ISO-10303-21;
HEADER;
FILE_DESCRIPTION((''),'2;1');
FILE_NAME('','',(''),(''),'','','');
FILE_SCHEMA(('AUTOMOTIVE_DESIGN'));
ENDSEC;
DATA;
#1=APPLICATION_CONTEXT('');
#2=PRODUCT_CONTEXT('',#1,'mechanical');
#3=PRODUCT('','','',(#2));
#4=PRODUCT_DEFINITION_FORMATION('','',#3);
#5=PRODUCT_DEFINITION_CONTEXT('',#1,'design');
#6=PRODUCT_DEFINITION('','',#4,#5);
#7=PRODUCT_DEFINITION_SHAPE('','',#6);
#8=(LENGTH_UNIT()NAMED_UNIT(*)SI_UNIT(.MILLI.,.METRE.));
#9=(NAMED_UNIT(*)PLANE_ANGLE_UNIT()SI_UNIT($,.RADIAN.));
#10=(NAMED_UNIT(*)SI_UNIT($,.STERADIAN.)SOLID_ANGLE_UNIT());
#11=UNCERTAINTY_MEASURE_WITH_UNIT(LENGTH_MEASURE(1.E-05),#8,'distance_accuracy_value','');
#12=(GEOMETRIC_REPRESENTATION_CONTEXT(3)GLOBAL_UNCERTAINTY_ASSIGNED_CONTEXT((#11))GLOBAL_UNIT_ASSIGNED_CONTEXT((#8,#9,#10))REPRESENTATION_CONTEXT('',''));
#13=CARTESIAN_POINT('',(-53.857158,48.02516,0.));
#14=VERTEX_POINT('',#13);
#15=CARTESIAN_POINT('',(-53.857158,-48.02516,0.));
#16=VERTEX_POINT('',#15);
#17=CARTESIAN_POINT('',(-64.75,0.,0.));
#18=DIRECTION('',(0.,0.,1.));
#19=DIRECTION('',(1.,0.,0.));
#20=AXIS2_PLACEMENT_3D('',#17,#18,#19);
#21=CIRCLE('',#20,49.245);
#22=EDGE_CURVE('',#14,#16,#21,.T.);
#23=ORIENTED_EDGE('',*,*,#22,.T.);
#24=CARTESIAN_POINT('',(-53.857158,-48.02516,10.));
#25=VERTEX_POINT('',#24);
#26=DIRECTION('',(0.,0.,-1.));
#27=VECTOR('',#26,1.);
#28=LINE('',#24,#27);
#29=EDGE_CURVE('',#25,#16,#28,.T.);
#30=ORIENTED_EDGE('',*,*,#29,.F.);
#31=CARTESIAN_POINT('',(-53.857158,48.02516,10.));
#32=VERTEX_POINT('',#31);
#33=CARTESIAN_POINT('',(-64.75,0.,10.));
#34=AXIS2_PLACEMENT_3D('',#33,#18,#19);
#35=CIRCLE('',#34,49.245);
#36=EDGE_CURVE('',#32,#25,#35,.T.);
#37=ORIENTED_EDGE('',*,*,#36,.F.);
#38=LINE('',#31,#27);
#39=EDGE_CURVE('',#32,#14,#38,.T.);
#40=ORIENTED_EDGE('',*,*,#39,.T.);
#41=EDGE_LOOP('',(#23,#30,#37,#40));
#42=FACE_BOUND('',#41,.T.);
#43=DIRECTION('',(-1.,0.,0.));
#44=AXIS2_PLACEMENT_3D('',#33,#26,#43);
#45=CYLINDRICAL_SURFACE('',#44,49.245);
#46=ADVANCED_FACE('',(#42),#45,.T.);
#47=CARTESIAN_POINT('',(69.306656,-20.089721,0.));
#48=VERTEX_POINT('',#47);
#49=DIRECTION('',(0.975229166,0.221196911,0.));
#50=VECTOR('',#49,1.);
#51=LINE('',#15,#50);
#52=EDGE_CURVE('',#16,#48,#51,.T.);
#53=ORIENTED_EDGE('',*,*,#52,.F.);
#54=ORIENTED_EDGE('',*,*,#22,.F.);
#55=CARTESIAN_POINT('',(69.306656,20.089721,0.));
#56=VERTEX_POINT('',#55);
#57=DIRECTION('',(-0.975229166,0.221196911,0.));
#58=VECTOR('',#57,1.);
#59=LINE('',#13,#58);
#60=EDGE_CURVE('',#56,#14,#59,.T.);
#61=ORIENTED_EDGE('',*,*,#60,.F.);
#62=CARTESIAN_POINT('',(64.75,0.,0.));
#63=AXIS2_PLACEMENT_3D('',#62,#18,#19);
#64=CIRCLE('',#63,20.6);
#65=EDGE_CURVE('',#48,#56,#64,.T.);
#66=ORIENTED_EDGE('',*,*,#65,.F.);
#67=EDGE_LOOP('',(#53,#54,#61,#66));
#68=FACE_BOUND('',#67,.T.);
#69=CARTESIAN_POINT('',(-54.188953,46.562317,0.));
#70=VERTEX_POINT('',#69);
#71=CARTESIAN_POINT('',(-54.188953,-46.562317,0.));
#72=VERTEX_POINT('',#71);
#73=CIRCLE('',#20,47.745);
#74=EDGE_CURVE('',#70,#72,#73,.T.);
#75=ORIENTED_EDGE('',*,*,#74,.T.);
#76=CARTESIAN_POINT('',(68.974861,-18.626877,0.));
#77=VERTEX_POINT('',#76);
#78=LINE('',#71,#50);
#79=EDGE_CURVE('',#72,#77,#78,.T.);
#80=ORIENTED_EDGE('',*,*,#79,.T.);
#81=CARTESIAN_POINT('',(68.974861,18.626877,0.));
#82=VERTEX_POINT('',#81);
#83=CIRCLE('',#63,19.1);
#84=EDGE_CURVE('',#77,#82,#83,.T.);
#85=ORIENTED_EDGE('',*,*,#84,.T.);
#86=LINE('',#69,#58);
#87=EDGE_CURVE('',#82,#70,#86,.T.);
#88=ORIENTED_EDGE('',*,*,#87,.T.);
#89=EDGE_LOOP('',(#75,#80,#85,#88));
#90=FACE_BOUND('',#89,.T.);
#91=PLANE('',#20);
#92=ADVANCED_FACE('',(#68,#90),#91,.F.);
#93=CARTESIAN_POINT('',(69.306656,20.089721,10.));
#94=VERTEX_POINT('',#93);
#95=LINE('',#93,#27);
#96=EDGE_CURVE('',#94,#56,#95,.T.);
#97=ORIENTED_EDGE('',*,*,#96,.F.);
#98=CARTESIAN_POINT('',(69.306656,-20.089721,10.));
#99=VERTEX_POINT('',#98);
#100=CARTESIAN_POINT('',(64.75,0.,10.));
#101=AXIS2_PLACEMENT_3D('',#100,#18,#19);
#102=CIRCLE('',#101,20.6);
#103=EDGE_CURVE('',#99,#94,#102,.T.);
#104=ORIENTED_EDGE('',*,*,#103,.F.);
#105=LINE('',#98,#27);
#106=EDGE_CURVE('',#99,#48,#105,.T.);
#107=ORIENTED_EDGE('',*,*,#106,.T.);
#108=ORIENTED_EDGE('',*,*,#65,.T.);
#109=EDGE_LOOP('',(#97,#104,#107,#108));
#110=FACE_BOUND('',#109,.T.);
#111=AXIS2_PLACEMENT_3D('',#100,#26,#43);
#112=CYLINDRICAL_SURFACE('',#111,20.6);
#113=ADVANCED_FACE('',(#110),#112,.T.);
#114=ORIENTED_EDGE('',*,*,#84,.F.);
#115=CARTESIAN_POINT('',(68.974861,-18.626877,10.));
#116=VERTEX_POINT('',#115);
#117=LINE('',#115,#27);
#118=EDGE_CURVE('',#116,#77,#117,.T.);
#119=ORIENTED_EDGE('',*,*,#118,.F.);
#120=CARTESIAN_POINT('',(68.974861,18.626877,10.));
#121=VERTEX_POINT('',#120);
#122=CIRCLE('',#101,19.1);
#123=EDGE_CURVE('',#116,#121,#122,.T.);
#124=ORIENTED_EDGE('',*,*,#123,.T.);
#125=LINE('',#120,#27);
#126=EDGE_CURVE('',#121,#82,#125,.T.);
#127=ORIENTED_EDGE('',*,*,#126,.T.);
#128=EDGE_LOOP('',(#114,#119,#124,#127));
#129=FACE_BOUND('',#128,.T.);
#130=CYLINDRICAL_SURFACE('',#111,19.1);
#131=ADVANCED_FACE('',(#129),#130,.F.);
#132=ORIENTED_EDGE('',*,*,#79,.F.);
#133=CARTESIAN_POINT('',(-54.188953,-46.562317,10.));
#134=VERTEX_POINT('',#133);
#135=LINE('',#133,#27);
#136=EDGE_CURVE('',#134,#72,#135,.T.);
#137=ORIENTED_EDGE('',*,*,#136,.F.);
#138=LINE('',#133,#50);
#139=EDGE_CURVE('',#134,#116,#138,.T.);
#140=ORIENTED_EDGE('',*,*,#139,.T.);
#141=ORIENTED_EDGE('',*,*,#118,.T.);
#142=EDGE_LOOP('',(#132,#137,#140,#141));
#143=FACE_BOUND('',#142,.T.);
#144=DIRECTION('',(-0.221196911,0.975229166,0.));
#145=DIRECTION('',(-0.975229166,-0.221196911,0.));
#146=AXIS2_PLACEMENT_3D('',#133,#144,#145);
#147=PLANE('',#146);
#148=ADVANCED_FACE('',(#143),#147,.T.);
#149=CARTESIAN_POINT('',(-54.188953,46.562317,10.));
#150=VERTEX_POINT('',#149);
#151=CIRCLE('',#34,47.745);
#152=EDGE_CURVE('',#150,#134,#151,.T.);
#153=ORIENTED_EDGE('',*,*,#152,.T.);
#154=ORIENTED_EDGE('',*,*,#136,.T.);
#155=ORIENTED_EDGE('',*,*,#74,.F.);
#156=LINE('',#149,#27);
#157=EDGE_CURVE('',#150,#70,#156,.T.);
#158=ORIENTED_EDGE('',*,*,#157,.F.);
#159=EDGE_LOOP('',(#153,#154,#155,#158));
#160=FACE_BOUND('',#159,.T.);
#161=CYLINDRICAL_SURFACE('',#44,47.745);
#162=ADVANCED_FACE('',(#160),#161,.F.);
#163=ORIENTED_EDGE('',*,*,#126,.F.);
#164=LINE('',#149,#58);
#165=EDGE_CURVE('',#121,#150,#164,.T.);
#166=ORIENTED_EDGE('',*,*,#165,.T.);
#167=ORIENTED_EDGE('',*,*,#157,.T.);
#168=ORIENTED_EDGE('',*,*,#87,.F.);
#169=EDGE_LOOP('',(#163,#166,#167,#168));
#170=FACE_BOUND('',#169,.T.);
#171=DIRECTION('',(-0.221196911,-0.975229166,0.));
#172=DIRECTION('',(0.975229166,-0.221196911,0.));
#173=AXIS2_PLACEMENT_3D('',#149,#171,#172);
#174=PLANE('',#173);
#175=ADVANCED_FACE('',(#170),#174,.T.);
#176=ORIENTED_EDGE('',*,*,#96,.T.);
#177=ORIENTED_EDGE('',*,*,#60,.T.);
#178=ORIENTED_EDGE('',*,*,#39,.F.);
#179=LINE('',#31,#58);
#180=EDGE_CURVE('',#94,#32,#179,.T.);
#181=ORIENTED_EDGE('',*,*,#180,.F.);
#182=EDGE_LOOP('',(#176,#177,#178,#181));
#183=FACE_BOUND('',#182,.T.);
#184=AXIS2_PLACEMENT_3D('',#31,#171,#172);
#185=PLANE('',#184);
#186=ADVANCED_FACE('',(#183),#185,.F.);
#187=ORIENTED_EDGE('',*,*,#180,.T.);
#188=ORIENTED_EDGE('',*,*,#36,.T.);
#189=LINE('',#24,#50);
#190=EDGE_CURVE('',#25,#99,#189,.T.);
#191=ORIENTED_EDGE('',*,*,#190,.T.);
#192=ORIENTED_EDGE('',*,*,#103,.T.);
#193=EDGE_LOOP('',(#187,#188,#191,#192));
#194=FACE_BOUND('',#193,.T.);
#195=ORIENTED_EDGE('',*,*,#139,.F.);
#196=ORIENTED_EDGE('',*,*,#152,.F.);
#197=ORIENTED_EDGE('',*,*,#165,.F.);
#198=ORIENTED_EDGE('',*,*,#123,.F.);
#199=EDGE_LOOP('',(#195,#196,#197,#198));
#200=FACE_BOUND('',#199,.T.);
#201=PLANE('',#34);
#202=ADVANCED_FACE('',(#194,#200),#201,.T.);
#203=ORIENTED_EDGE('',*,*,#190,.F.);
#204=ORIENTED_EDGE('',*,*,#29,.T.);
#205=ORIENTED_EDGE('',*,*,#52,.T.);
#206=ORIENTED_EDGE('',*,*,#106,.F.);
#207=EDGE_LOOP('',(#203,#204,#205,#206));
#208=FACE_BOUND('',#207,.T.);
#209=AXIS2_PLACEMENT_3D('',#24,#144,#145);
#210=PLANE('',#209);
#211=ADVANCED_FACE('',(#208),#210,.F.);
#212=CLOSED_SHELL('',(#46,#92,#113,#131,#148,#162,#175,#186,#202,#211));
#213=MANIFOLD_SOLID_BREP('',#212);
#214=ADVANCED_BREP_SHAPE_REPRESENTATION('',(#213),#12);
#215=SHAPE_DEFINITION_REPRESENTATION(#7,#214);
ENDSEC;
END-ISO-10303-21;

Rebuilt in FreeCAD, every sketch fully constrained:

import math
import FreeCAD as App
import Part
import Sketcher
Q = App.Units.Quantity

doc = App.newDocument("Part")
body = doc.addObject("PartDesign::Body", "Body")

# Sketch on XY plane
sketch1 = body.newObject("Sketcher::SketchObject", "Sketch")
sketch1.AttachmentSupport = (doc.getObject("XY_Plane"), [""])
sketch1.MapMode = "FlatFace"
sketch1.addGeometry(Part.LineSegment(App.Vector(69, 20, 0), App.Vector(-54, 48, 0)), False)
sketch1.addGeometry(Part.ArcOfCircle(Part.Circle(App.Vector(-65, 0, 0), App.Vector(0, 0, 1), 49), math.radians(77), math.radians(283)), False)
sketch1.addGeometry(Part.LineSegment(App.Vector(-54, -48, 0), App.Vector(69, -20, 0)), False)
sketch1.addGeometry(Part.ArcOfCircle(Part.Circle(App.Vector(65, 0, 0), App.Vector(0, 0, 1), 21), math.radians(-77), math.radians(77)), False)
sketch1.addGeometry(Part.LineSegment(App.Vector(-54, 47, 0), App.Vector(69, 19, 0)), False)
sketch1.addGeometry(Part.ArcOfCircle(Part.Circle(App.Vector(65, 0, 0), App.Vector(0, 0, 1), 19), math.radians(-77), math.radians(77)), False)
sketch1.addGeometry(Part.LineSegment(App.Vector(69, -19, 0), App.Vector(-54, -47, 0)), False)
sketch1.addGeometry(Part.ArcOfCircle(Part.Circle(App.Vector(-65, 0, 0), App.Vector(0, 0, 1), 48), math.radians(77), math.radians(283)), False)
sketch1.addConstraint(Sketcher.Constraint("Tangent", 0, 2, 1, 1))
sketch1.addConstraint(Sketcher.Constraint("Tangent", 1, 2, 2, 1))
sketch1.addConstraint(Sketcher.Constraint("Tangent", 2, 2, 3, 1))
sketch1.addConstraint(Sketcher.Constraint("Tangent", 3, 2, 0, 1))
sketch1.addConstraint(Sketcher.Constraint("Tangent", 4, 2, 5, 2))
sketch1.addConstraint(Sketcher.Constraint("Tangent", 5, 1, 6, 1))
sketch1.addConstraint(Sketcher.Constraint("Tangent", 6, 2, 7, 2))
sketch1.addConstraint(Sketcher.Constraint("Tangent", 7, 1, 4, 1))
sketch1.addConstraint(Sketcher.Constraint("Coincident", 5, 3, 3, 3))
sketch1.addConstraint(Sketcher.Constraint("Coincident", 7, 3, 1, 3))
sketch1.addConstraint(Sketcher.Constraint("Symmetric", 1, 3, 3, 3, -1, 1))
sketch1.addConstraint(Sketcher.Constraint("PointOnObject", 1, 3, -1))
sketch1.addConstraint(Sketcher.Constraint("Parallel", 0, 4))
sketch1.addConstraint(Sketcher.Constraint("Radius", 3, Q("20.6 mm")))
sketch1.addConstraint(Sketcher.Constraint("Radius", 5, Q("19.1 mm")))
sketch1.addConstraint(Sketcher.Constraint("Radius", 1, Q("49.245 mm")))
sketch1.addConstraint(Sketcher.Constraint("DistanceX", 1, 3, 3, 3, Q("129.5 mm")))
pad1 = body.newObject("PartDesign::Pad", "Pad")
pad1.Profile = sketch1
pad1.Length = 10

doc.recompute()
